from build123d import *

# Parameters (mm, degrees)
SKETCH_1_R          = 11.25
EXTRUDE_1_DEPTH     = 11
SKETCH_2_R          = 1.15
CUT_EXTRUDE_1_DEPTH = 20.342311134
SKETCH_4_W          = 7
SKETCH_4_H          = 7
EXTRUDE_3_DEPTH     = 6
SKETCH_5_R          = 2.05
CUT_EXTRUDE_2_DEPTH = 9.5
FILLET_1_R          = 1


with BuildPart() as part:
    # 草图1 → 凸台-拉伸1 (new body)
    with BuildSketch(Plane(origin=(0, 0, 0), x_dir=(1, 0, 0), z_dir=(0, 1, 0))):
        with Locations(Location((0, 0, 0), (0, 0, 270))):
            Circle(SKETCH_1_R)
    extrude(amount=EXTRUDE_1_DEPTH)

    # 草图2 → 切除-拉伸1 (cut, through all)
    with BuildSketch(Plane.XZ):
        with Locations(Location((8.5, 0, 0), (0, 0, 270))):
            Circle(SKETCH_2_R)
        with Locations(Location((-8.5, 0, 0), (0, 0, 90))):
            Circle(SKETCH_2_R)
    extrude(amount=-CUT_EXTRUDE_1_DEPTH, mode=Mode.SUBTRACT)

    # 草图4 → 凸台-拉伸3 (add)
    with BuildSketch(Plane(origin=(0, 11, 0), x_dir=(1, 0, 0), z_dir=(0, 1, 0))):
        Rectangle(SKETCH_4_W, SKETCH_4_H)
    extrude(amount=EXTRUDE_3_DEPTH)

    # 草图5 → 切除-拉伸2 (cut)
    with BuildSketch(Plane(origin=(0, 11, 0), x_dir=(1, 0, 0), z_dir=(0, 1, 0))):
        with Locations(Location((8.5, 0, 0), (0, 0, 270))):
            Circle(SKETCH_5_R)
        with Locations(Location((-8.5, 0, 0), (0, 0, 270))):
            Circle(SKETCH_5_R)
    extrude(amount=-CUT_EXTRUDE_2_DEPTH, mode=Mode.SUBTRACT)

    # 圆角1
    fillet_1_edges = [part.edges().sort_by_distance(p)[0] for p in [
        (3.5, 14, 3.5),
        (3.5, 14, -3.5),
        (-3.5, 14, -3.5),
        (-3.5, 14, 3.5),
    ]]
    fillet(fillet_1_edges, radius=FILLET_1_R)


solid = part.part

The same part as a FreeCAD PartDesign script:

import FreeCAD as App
import Part
import Sketcher
Q = App.Units.Quantity


def edges_at(feature, points):
    """Names of the edges that pass closest to the given points."""
    edges = feature.Shape.Edges
    near = lambda p: min(range(len(edges)), key=lambda i: edges[i].distToShape(Part.Vertex(*p))[0])
    return sorted({f"Edge{near(p) + 1}" for p in points})

doc = App.newDocument("Part")
body = doc.addObject("PartDesign::Body", "Body")

# Sketch on XZ plane
sketch1 = body.newObject("Sketcher::SketchObject", "Sketch")
sketch1.AttachmentSupport = (doc.getObject("XZ_Plane"), [""])
sketch1.MapMode = "FlatFace"
sketch1.addGeometry(Part.Circle(App.Vector(0, 0, 0), App.Vector(0, 0, 1), 11), False)
sketch1.addConstraint(Sketcher.Constraint("Coincident", 0, 3, -1, 1))
sketch1.addConstraint(Sketcher.Constraint("Diameter", 0, Q("22.5 mm")))
pad1 = body.newObject("PartDesign::Pad", "Pad")
pad1.Profile = sketch1
pad1.Length = 11
pad1.Reversed = True

# Sketch on XZ plane
sketch2 = body.newObject("Sketcher::SketchObject", "Sketch001")
sketch2.AttachmentSupport = (doc.getObject("XZ_Plane"), [""])
sketch2.MapMode = "FlatFace"
sketch2.addGeometry(Part.Circle(App.Vector(8.5, 0, 0), App.Vector(0, 0, 1), 1.1), False)
sketch2.addGeometry(Part.Circle(App.Vector(-8.5, 0, 0), App.Vector(0, 0, 1), 1.1), False)
sketch2.addConstraint(Sketcher.Constraint("Equal", 0, 1))
sketch2.addConstraint(Sketcher.Constraint("Symmetric", 0, 3, 1, 3, -1, 1))
sketch2.addConstraint(Sketcher.Constraint("PointOnObject", 0, 3, -1))
sketch2.addConstraint(Sketcher.Constraint("Diameter", 0, Q("2.3 mm")))
sketch2.addConstraint(Sketcher.Constraint("DistanceX", 1, 3, 0, 3, Q("17 mm")))
pocket1 = body.newObject("PartDesign::Pocket", "Pocket")
pocket1.Profile = sketch2
pocket1.Type = "ThroughAll"

# Sketch on XZ plane
sketch3 = body.newObject("Sketcher::SketchObject", "Sketch002")
sketch3.AttachmentSupport = (doc.getObject("XZ_Plane"), [""])
sketch3.MapMode = "FlatFace"
sketch3.AttachmentOffset = App.Placement(App.Vector(0, 0, -11), App.Rotation())
sketch3.addGeometry(Part.LineSegment(App.Vector(-4, -4, 0), App.Vector(-4, 4, 0)), False)
sketch3.addGeometry(Part.LineSegment(App.Vector(-4, 4, 0), App.Vector(4, 4, 0)), False)
sketch3.addGeometry(Part.LineSegment(App.Vector(4, 4, 0), App.Vector(4, -4, 0)), False)
sketch3.addGeometry(Part.LineSegment(App.Vector(4, -4, 0), App.Vector(-4, -4, 0)), False)
sketch3.addConstraint(Sketcher.Constraint("Coincident", 0, 2, 1, 1))
sketch3.addConstraint(Sketcher.Constraint("Coincident", 1, 2, 2, 1))
sketch3.addConstraint(Sketcher.Constraint("Coincident", 2, 2, 3, 1))
sketch3.addConstraint(Sketcher.Constraint("Coincident", 3, 2, 0, 1))
sketch3.addConstraint(Sketcher.Constraint("Vertical", 0))
sketch3.addConstraint(Sketcher.Constraint("Horizontal", 1))
sketch3.addConstraint(Sketcher.Constraint("Vertical", 2))
sketch3.addConstraint(Sketcher.Constraint("Horizontal", 3))
sketch3.addConstraint(Sketcher.Constraint("Symmetric", 0, 2, 2, 2, -1, 1))
sketch3.addConstraint(Sketcher.Constraint("Equal", 3, 0))
sketch3.addConstraint(Sketcher.Constraint("DistanceX", 1, 1, 1, 2, Q("7 mm")))
pad2 = body.newObject("PartDesign::Pad", "Pad001")
pad2.Profile = sketch3
pad2.Length = 6
pad2.Reversed = True

# Sketch on XZ plane
sketch4 = body.newObject("Sketcher::SketchObject", "Sketch003")
sketch4.AttachmentSupport = (doc.getObject("XZ_Plane"), [""])
sketch4.MapMode = "FlatFace"
sketch4.AttachmentOffset = App.Placement(App.Vector(0, 0, -11), App.Rotation())
sketch4.addGeometry(Part.Circle(App.Vector(8.5, 0, 0), App.Vector(0, 0, 1), 2), False)
sketch4.addGeometry(Part.Circle(App.Vector(-8.5, 0, 0), App.Vector(0, 0, 1), 2), False)
sketch4.addConstraint(Sketcher.Constraint("Equal", 0, 1))
sketch4.addConstraint(Sketcher.Constraint("Symmetric", 0, 3, 1, 3, -1, 1))
sketch4.addConstraint(Sketcher.Constraint("PointOnObject", 0, 3, -1))
sketch4.addConstraint(Sketcher.Constraint("Diameter", 0, Q("4.1 mm")))
sketch4.addConstraint(Sketcher.Constraint("DistanceX", 1, 3, 0, 3, Q("17 mm")))
pocket2 = body.newObject("PartDesign::Pocket", "Pocket001")
pocket2.Profile = sketch4
pocket2.Length = 9.5
pocket2.Reversed = True
doc.recompute()

fillet = body.newObject("PartDesign::Fillet", "Fillet")
fillet.Base = (pocket2, edges_at(pocket2, [
    (3.5, 14, 3.5),
    (3.5, 14, -3.5),
    (-3.5, 14, -3.5),
    (-3.5, 14, 3.5),
]))
fillet.Radius = 1

doc.recompute()
